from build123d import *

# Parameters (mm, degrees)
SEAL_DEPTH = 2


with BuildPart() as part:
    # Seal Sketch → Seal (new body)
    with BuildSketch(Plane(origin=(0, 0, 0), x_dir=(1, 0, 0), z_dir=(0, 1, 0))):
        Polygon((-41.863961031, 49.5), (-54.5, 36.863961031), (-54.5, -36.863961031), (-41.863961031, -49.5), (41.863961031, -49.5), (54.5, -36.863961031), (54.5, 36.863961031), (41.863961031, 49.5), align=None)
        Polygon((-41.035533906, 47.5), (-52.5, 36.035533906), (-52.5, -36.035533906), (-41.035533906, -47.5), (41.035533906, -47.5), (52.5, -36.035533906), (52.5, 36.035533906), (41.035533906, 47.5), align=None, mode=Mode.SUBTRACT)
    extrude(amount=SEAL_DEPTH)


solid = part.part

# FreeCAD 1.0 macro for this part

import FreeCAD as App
import Part
import Sketcher
from FreeCAD import Vector
Q = App.Units.Quantity


def add_polygon(sketch, points):
    """Adds a closed chain of lines whose ends are joined by coincident constraints."""
    first, n = sketch.GeometryCount, len(points)
    for a, b in zip(points, points[1:] + points[:1]):
        sketch.addGeometry(Part.LineSegment(App.Vector(*a, 0), App.Vector(*b, 0)), False)
    for i in range(n):
        sketch.addConstraint(Sketcher.Constraint("Coincident", first + i, 2, first + (i + 1) % n, 1))

doc = App.newDocument("Part")
params = doc.addObject("Spreadsheet::Sheet", "Params")
for row, (alias, value) in enumerate([
    ("pad1_length", "2 mm"),
], start=1):
    params.set(f"A{row}", alias)
    params.set(f"B{row}", "=" + value)
    params.setAlias(f"B{row}", alias)

body = doc.addObject("PartDesign::Body", "Body")

# Sketch on XZ plane
sketch1 = body.newObject("Sketcher::SketchObject", "Sketch")
sketch1.AttachmentSupport = (doc.getObject("XZ_Plane"), [""])
sketch1.MapMode = "FlatFace"
add_polygon(sketch1, [(-42, -50), (-54, -37), (-54, 37), (-42, 50), (42, 50), (54, 37), (54, -37), (42, -50)])  # lines 0-7
add_polygon(sketch1, [(-52, -36), (-41, -48), (41, -48), (52, -36), (52, 36), (41, 48), (-41, 48), (-52, 36)])  # lines 8-15
sketch1.addConstraint(Sketcher.Constraint("Vertical", 1))
sketch1.addConstraint(Sketcher.Constraint("Horizontal", 3))
sketch1.addConstraint(Sketcher.Constraint("Vertical", 5))
sketch1.addConstraint(Sketcher.Constraint("Horizontal", 7))
sketch1.addConstraint(Sketcher.Constraint("Horizontal", 9))
sketch1.addConstraint(Sketcher.Constraint("Vertical", 11))
sketch1.addConstraint(Sketcher.Constraint("Horizontal", 13))
sketch1.addConstraint(Sketcher.Constraint("Vertical", 15))
sketch1.addConstraint(Sketcher.Constraint("Symmetric", 0, 2, 4, 2, -1, 1))
sketch1.addConstraint(Sketcher.Constraint("Symmetric", 2, 2, 6, 2, -1, 1))
sketch1.addConstraint(Sketcher.Constraint("Symmetric", 8, 2, 12, 2, -1, 1))
sketch1.addConstraint(Sketcher.Constraint("Symmetric", 10, 2, 14, 2, -1, 1))
sketch1.addConstraint(Sketcher.Constraint("Perpendicular", 0, 2))
sketch1.addConstraint(Sketcher.Constraint("Perpendicular", 2, 4))
sketch1.addConstraint(Sketcher.Constraint("Perpendicular", 4, 6))
sketch1.addConstraint(Sketcher.Constraint("Perpendicular", 6, 8))
sketch1.addConstraint(Sketcher.Constraint("Perpendicular", 8, 10))
sketch1.addConstraint(Sketcher.Constraint("Perpendicular", 10, 12))
sketch1.addConstraint(Sketcher.Constraint("Perpendicular", 12, 14))
sketch1.addConstraint(Sketcher.Constraint("Horizontal", 1, 2, 4, 2))
sketch1.addConstraint(Sketcher.Constraint("Horizontal", 11, 2, 14, 2))
sketch1.addConstraint(Sketcher.Constraint("Vertical", 3, 2, 6, 2))
sketch1.addConstraint(Sketcher.Constraint("DistanceX", 1, 2, 4, 2, Q("109 mm")))
sketch1.addConstraint(Sketcher.Constraint("DistanceY", 6, 2, 3, 2, Q("99 mm")))
sketch1.addConstraint(Sketcher.Constraint("DistanceY", 7, 2, 8, 2, Q("2 mm")))
sketch1.addConstraint(Sketcher.Constraint("DistanceX", 10, 2, 5, 2, Q("2 mm")))
sketch1.addConstraint(Sketcher.Constraint("DistanceX", 3, 1, 3, 2, Q("83.727922 mm")))
sketch1.addConstraint(Sketcher.Constraint("DistanceX", 9, 1, 9, 2, Q("82.071068 mm")))
pad1 = body.newObject("PartDesign::Pad", "Pad")
pad1.Profile = sketch1
pad1.setExpression("Length", "Params.pad1_length")
pad1.Reversed = True

doc.recompute()
